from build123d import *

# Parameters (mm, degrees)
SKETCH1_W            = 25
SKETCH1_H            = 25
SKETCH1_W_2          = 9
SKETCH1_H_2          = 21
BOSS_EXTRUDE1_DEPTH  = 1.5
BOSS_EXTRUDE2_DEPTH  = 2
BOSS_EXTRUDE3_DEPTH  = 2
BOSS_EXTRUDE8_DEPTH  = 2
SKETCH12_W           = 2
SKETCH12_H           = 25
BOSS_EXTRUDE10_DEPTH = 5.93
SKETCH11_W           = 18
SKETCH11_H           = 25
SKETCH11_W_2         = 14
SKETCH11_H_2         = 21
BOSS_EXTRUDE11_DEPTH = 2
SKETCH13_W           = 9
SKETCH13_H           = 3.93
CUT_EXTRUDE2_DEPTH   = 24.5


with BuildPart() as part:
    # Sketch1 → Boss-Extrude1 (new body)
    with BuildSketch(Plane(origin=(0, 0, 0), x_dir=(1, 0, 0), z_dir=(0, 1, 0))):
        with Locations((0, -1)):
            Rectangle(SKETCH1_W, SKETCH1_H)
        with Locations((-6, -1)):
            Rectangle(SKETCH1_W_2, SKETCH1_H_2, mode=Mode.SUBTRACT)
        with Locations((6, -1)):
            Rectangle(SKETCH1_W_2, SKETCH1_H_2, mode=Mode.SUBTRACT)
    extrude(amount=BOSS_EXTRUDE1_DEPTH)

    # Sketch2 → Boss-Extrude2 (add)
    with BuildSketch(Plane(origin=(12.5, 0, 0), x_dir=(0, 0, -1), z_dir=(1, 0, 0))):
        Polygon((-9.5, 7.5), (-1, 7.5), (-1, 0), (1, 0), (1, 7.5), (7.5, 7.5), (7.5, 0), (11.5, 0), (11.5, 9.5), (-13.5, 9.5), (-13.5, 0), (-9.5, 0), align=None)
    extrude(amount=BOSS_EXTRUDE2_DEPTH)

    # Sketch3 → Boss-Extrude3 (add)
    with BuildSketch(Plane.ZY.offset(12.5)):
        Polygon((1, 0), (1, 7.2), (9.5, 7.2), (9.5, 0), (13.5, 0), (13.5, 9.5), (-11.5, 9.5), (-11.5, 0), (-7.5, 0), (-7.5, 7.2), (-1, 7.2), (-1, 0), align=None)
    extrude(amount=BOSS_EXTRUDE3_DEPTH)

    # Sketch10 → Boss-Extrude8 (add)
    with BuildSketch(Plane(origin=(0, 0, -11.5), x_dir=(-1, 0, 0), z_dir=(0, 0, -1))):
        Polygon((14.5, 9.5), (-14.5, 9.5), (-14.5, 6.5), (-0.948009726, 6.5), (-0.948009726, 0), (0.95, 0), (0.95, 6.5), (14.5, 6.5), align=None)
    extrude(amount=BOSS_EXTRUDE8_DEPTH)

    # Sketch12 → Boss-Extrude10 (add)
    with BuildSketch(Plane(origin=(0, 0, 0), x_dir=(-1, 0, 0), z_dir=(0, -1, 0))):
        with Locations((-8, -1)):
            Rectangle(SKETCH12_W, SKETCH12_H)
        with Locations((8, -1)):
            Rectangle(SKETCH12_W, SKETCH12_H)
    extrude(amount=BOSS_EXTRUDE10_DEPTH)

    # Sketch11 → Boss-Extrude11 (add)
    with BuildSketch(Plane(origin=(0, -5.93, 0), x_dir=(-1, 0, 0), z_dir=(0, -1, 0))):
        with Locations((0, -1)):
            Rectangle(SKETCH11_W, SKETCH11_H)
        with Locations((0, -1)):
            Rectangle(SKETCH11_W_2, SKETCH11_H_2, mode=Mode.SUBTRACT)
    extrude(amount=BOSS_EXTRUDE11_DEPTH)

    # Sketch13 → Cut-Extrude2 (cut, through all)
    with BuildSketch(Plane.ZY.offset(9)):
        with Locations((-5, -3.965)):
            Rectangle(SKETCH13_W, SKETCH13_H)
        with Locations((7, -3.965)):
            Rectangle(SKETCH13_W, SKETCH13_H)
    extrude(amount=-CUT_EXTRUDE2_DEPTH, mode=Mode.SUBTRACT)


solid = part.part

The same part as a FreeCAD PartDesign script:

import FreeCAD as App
import Part
import Sketcher
Q = App.Units.Quantity

doc = App.newDocument("Part")
body = doc.addObject("PartDesign::Body", "Body")

sketch1 = doc.addObject("Sketcher::SketchObject", "Sketch")
body.addObject(sketch1)
sketch1.AttachmentSupport = (doc.XZ_Plane, [""])
sketch1.MapMode = "FlatFace"
sketch1.addGeometry(Part.LineSegment(App.Vector(-12, -12, 0), App.Vector(-12, 14, 0)), False)
sketch1.addGeometry(Part.LineSegment(App.Vector(-12, 14, 0), App.Vector(12, 14, 0)), False)
sketch1.addGeometry(Part.LineSegment(App.Vector(12, 14, 0), App.Vector(12, -12, 0)), False)
sketch1.addGeometry(Part.LineSegment(App.Vector(12, -12, 0), App.Vector(-12, -12, 0)), False)
sketch1.addGeometry(Part.LineSegment(App.Vector(-2, 12, 0), App.Vector(-10, 12, 0)), False)
sketch1.addGeometry(Part.LineSegment(App.Vector(-10, 12, 0), App.Vector(-10, -10, 0)), False)
sketch1.addGeometry(Part.LineSegment(App.Vector(-10, -10, 0), App.Vector(-2, -10, 0)), False)
sketch1.addGeometry(Part.LineSegment(App.Vector(-2, -10, 0), App.Vector(-2, 12, 0)), False)
sketch1.addGeometry(Part.LineSegment(App.Vector(10, 12, 0), App.Vector(2, 12, 0)), False)
sketch1.addGeometry(Part.LineSegment(App.Vector(2, 12, 0), App.Vector(2, -10, 0)), False)
sketch1.addGeometry(Part.LineSegment(App.Vector(2, -10, 0), App.Vector(10, -10, 0)), False)
sketch1.addGeometry(Part.LineSegment(App.Vector(10, -10, 0), App.Vector(10, 12, 0)), False)
sketch1.addConstraint(Sketcher.Constraint("Coincident", 0, 2, 1, 1))
sketch1.addConstraint(Sketcher.Constraint("Coincident", 1, 2, 2, 1))
sketch1.addConstraint(Sketcher.Constraint("Coincident", 2, 2, 3, 1))
sketch1.addConstraint(Sketcher.Constraint("Coincident", 3, 2, 0, 1))
sketch1.addConstraint(Sketcher.Constraint("Coincident", 4, 2, 5, 1))
sketch1.addConstraint(Sketcher.Constraint("Coincident", 5, 2, 6, 1))
sketch1.addConstraint(Sketcher.Constraint("Coincident", 6, 2, 7, 1))
sketch1.addConstraint(Sketcher.Constraint("Coincident", 7, 2, 4, 1))
sketch1.addConstraint(Sketcher.Constraint("Coincident", 8, 2, 9, 1))
sketch1.addConstraint(Sketcher.Constraint("Coincident", 9, 2, 10, 1))
sketch1.addConstraint(Sketcher.Constraint("Coincident", 10, 2, 11, 1))
sketch1.addConstraint(Sketcher.Constraint("Coincident", 11, 2, 8, 1))
sketch1.addConstraint(Sketcher.Constraint("Vertical", 0))
sketch1.addConstraint(Sketcher.Constraint("Horizontal", 1))
sketch1.addConstraint(Sketcher.Constraint("Vertical", 2))
sketch1.addConstraint(Sketcher.Constraint("Horizontal", 3))
sketch1.addConstraint(Sketcher.Constraint("Horizontal", 4))
sketch1.addConstraint(Sketcher.Constraint("Vertical", 5))
sketch1.addConstraint(Sketcher.Constraint("Horizontal", 6))
sketch1.addConstraint(Sketcher.Constraint("Vertical", 7))
sketch1.addConstraint(Sketcher.Constraint("Horizontal", 8))
sketch1.addConstraint(Sketcher.Constraint("Vertical", 9))
sketch1.addConstraint(Sketcher.Constraint("Horizontal", 10))
sketch1.addConstraint(Sketcher.Constraint("Vertical", 11))
sketch1.addConstraint(Sketcher.Constraint("Symmetric", 7, 2, 8, 2, -2))
sketch1.addConstraint(Sketcher.Constraint("Symmetric", 5, 2, 10, 2, -2))
sketch1.addConstraint(Sketcher.Constraint("Equal", 3, 0))
sketch1.addConstraint(Sketcher.Constraint("DistanceX", 1, 1, 1, 2, Q("25 mm")))
sketch1.addConstraint(Sketcher.Constraint("DistanceX", 4, 2, 4, 1, Q("9 mm")))
sketch1.addConstraint(Sketcher.Constraint("DistanceY", 5, 2, 5, 1, Q("21 mm")))
sketch1.addConstraint(Sketcher.Constraint("DistanceX", 0, 2, 4, 2, Q("2 mm")))
sketch1.addConstraint(Sketcher.Constraint("DistanceY", 4, 2, 0, 2, Q("2 mm")))
sketch1.addConstraint(Sketcher.Constraint("DistanceX", 7, 2, 8, 2, Q("3 mm")))
sketch1.addConstraint(Sketcher.Constraint("DistanceY", -1, 1, 0, 2, Q("13.5 mm")))
pad1 = doc.addObject("PartDesign::Pad", "Pad")
body.addObject(pad1)
pad1.Profile = sketch1
pad1.Length = 1.5
pad1.Reversed = True

sketch2 = doc.addObject("Sketcher::SketchObject", "Sketch001")
body.addObject(sketch2)
sketch2.AttachmentSupport = (doc.YZ_Plane, [""])
sketch2.MapMode = "FlatFace"
sketch2.AttachmentOffset = App.Placement(App.Vector(0, 0, 12.5), App.Rotation())
sketch2.addGeometry(Part.LineSegment(App.Vector(7.5, 9.5, 0), App.Vector(7.5, 1, 0)), False)
sketch2.addGeometry(Part.LineSegment(App.Vector(7.5, 1, 0), App.Vector(0, 1, 0)), False)
sketch2.addGeometry(Part.LineSegment(App.Vector(0, 1, 0), App.Vector(0, -1, 0)), False)
sketch2.addGeometry(Part.LineSegment(App.Vector(0, -1, 0), App.Vector(7.5, -1, 0)), False)
sketch2.addGeometry(Part.LineSegment(App.Vector(7.5, -1, 0), App.Vector(7.5, -7.5, 0)), False)
sketch2.addGeometry(Part.LineSegment(App.Vector(7.5, -7.5, 0), App.Vector(0, -7.5, 0)), False)
sketch2.addGeometry(Part.LineSegment(App.Vector(0, -7.5, 0), App.Vector(0, -11.5, 0)), False)
sketch2.addGeometry(Part.LineSegment(App.Vector(0, -11.5, 0), App.Vector(9.5, -11.5, 0)), False)
sketch2.addGeometry(Part.LineSegment(App.Vector(9.5, -11.5, 0), App.Vector(9.5, 13.5, 0)), False)
sketch2.addGeometry(Part.LineSegment(App.Vector(9.5, 13.5, 0), App.Vector(0, 13.5, 0)), False)
sketch2.addGeometry(Part.LineSegment(App.Vector(0, 13.5, 0), App.Vector(0, 9.5, 0)), False)
sketch2.addGeometry(Part.LineSegment(App.Vector(0, 9.5, 0), App.Vector(7.5, 9.5, 0)), False)
sketch2.addConstraint(Sketcher.Constraint("Coincident", 0, 2, 1, 1))
sketch2.addConstraint(Sketcher.Constraint("Coincident", 1, 2, 2, 1))
sketch2.addConstraint(Sketcher.Constraint("Coincident", 2, 2, 3, 1))
sketch2.addConstraint(Sketcher.Constraint("Coincident", 3, 2, 4, 1))
sketch2.addConstraint(Sketcher.Constraint("Coincident", 4, 2, 5, 1))
sketch2.addConstraint(Sketcher.Constraint("Coincident", 5, 2, 6, 1))
sketch2.addConstraint(Sketcher.Constraint("Coincident", 6, 2, 7, 1))
sketch2.addConstraint(Sketcher.Constraint("Coincident", 7, 2, 8, 1))
sketch2.addConstraint(Sketcher.Constraint("Coincident", 8, 2, 9, 1))
sketch2.addConstraint(Sketcher.Constraint("Coincident", 9, 2, 10, 1))
sketch2.addConstraint(Sketcher.Constraint("Coincident", 10, 2, 11, 1))
sketch2.addConstraint(Sketcher.Constraint("Coincident", 11, 2, 0, 1))
sketch2.addConstraint(Sketcher.Constraint("Vertical", 0))
sketch2.addConstraint(Sketcher.Constraint("Horizontal", 1))
sketch2.addConstraint(Sketcher.Constraint("Vertical", 2))
sketch2.addConstraint(Sketcher.Constraint("Horizontal", 3))
sketch2.addConstraint(Sketcher.Constraint("Vertical", 4))
sketch2.addConstraint(Sketcher.Constraint("Horizontal", 5))
sketch2.addConstraint(Sketcher.Constraint("Vertical", 6))
sketch2.addConstraint(Sketcher.Constraint("Horizontal", 7))
sketch2.addConstraint(Sketcher.Constraint("Vertical", 8))
sketch2.addConstraint(Sketcher.Constraint("Horizontal", 9))
sketch2.addConstraint(Sketcher.Constraint("Vertical", 10))
sketch2.addConstraint(Sketcher.Constraint("Horizontal", 11))
sketch2.addConstraint(Sketcher.Constraint("Symmetric", 1, 2, 2, 2, -1, 1))
sketch2.addConstraint(Sketcher.Constraint("PointOnObject", 5, 2, -2))
sketch2.addConstraint(Sketcher.Constraint("PointOnObject", 9, 2, -2))
sketch2.addConstraint(Sketcher.Constraint("Vertical", 0, 2, 3, 2))
sketch2.addConstraint(Sketcher.Constraint("Equal", 6, 10))
sketch2.addConstraint(Sketcher.Constraint("DistanceY", 2, 2, 2, 1, Q("2 mm")))
sketch2.addConstraint(Sketcher.Constraint("DistanceY", 6, 2, 6, 1, Q("4 mm")))
sketch2.addConstraint(Sketcher.Constraint("DistanceY", 8, 1, 8, 2, Q("25 mm")))
sketch2.addConstraint(Sketcher.Constraint("DistanceX", 1, 2, 1, 1, Q("7.5 mm")))
sketch2.addConstraint(Sketcher.Constraint("DistanceX", 7, 1, 7, 2, Q("9.5 mm")))
sketch2.addConstraint(Sketcher.Constraint("DistanceY", 0, 2, 0, 1, Q("8.5 mm")))
pad2 = doc.addObject("PartDesign::Pad", "Pad001")
body.addObject(pad2)
pad2.Profile = sketch2
pad2.Length = 2

sketch3 = doc.addObject("Sketcher::SketchObject", "Sketch002")
body.addObject(sketch3)
sketch3.AttachmentSupport = (doc.YZ_Plane, [""])
sketch3.MapMode = "FlatFace"
sketch3.AttachmentOffset = App.Placement(App.Vector(0, 0, -12.5), App.Rotation())
sketch3.addGeometry(Part.LineSegment(App.Vector(0, 1, 0), App.Vector(7.2, 1, 0)), False)
sketch3.addGeometry(Part.LineSegment(App.Vector(7.2, 1, 0), App.Vector(7.2, 9.5, 0)), False)
sketch3.addGeometry(Part.LineSegment(App.Vector(7.2, 9.5, 0), App.Vector(0, 9.5, 0)), False)
sketch3.addGeometry(Part.LineSegment(App.Vector(0, 9.5, 0), App.Vector(0, 13.5, 0)), False)
sketch3.addGeometry(Part.LineSegment(App.Vector(0, 13.5, 0), App.Vector(9.5, 13.5, 0)), False)
sketch3.addGeometry(Part.LineSegment(App.Vector(9.5, 13.5, 0), App.Vector(9.5, -11.5, 0)), False)
sketch3.addGeometry(Part.LineSegment(App.Vector(9.5, -11.5, 0), App.Vector(0, -11.5, 0)), False)
sketch3.addGeometry(Part.LineSegment(App.Vector(0, -11.5, 0), App.Vector(0, -7.5, 0)), False)
sketch3.addGeometry(Part.LineSegment(App.Vector(0, -7.5, 0), App.Vector(7.2, -7.5, 0)), False)
sketch3.addGeometry(Part.LineSegment(App.Vector(7.2, -7.5, 0), App.Vector(7.2, -1, 0)), False)
sketch3.addGeometry(Part.LineSegment(App.Vector(7.2, -1, 0), App.Vector(0, -1, 0)), False)
sketch3.addGeometry(Part.LineSegment(App.Vector(0, -1, 0), App.Vector(0, 1, 0)), False)
sketch3.addConstraint(Sketcher.Constraint("Coincident", 0, 2, 1, 1))
sketch3.addConstraint(Sketcher.Constraint("Coincident", 1, 2, 2, 1))
sketch3.addConstraint(Sketcher.Constraint("Coincident", 2, 2, 3, 1))
sketch3.addConstraint(Sketcher.Constraint("Coincident", 3, 2, 4, 1))
sketch3.addConstraint(Sketcher.Constraint("Coincident", 4, 2, 5, 1))
sketch3.addConstraint(Sketcher.Constraint("Coincident", 5, 2, 6, 1))
sketch3.addConstraint(Sketcher.Constraint("Coincident", 6, 2, 7, 1))
sketch3.addConstraint(Sketcher.Constraint("Coincident", 7, 2, 8, 1))
sketch3.addConstraint(Sketcher.Constraint("Coincident", 8, 2, 9, 1))
sketch3.addConstraint(Sketcher.Constraint("Coincident", 9, 2, 10, 1))
sketch3.addConstraint(Sketcher.Constraint("Coincident", 10, 2, 11, 1))
sketch3.addConstraint(Sketcher.Constraint("Coincident", 11, 2, 0, 1))
sketch3.addConstraint(Sketcher.Constraint("Horizontal", 0))
sketch3.addConstraint(Sketcher.Constraint("Vertical", 1))
sketch3.addConstraint(Sketcher.Constraint("Horizontal", 2))
sketch3.addConstraint(Sketcher.Constraint("Vertical", 3))
sketch3.addConstraint(Sketcher.Constraint("Horizontal", 4))
sketch3.addConstraint(Sketcher.Constraint("Vertical", 5))
sketch3.addConstraint(Sketcher.Constraint("Horizontal", 6))
sketch3.addConstraint(Sketcher.Constraint("Vertical", 7))
sketch3.addConstraint(Sketcher.Constraint("Horizontal", 8))
sketch3.addConstraint(Sketcher.Constraint("Vertical", 9))
sketch3.addConstraint(Sketcher.Constraint("Horizontal", 10))
sketch3.addConstraint(Sketcher.Constraint("Vertical", 11))
sketch3.addConstraint(Sketcher.Constraint("Symmetric", 10, 2, 11, 2, -1, 1))
sketch3.addConstraint(Sketcher.Constraint("PointOnObject", 2, 2, -2))
sketch3.addConstraint(Sketcher.Constraint("PointOnObject", 6, 2, -2))
sketch3.addConstraint(Sketcher.Constraint("Vertical", 1, 2, 8, 2))
sketch3.addConstraint(Sketcher.Constraint("Equal", 3, 7))
sketch3.addConstraint(Sketcher.Constraint("DistanceY", 3, 1, 3, 2, Q("4 mm")))
sketch3.addConstraint(Sketcher.Constraint("DistanceY", 5, 2, 5, 1, Q("25 mm")))
sketch3.addConstraint(Sketcher.Constraint("DistanceY", 11, 1, 11, 2, Q("2 mm")))
sketch3.addConstraint(Sketcher.Constraint("DistanceX", 0, 1, 0, 2, Q("7.2 mm")))
sketch3.addConstraint(Sketcher.Constraint("DistanceX", 4, 1, 4, 2, Q("9.5 mm")))
sketch3.addConstraint(Sketcher.Constraint("DistanceY", 1, 1, 1, 2, Q("8.5 mm")))
pad3 = doc.addObject("PartDesign::Pad", "Pad002")
body.addObject(pad3)
pad3.Profile = sketch3
pad3.Length = 2
pad3.Reversed = True

sketch4 = doc.addObject("Sketcher::SketchObject", "Sketch003")
body.addObject(sketch4)
sketch4.AttachmentSupport = (doc.XY_Plane, [""])
sketch4.MapMode = "FlatFace"
sketch4.AttachmentOffset = App.Placement(App.Vector(0, 0, -11.5), App.Rotation())
sketch4.addGeometry(Part.LineSegment(App.Vector(-14.5, 9.5, 0), App.Vector(14.5, 9.5, 0)), False)
sketch4.addGeometry(Part.LineSegment(App.Vector(14.5, 9.5, 0), App.Vector(14.5, 6.5, 0)), False)
sketch4.addGeometry(Part.LineSegment(App.Vector(14.5, 6.5, 0), App.Vector(0.9, 6.5, 0)), False)
sketch4.addGeometry(Part.LineSegment(App.Vector(0.9, 6.5, 0), App.Vector(0.9, 0, 0)), False)
sketch4.addGeometry(Part.LineSegment(App.Vector(0.9, 0, 0), App.Vector(-0.9, 0, 0)), False)
sketch4.addGeometry(Part.LineSegment(App.Vector(-0.9, 0, 0), App.Vector(-0.9, 6.5, 0)), False)
sketch4.addGeometry(Part.LineSegment(App.Vector(-0.9, 6.5, 0), App.Vector(-14.5, 6.5, 0)), False)
sketch4.addGeometry(Part.LineSegment(App.Vector(-14.5, 6.5, 0), App.Vector(-14.5, 9.5, 0)), False)
sketch4.addConstraint(Sketcher.Constraint("Coincident", 0, 2, 1, 1))
sketch4.addConstraint(Sketcher.Constraint("Coincident", 1, 2, 2, 1))
sketch4.addConstraint(Sketcher.Constraint("Coincident", 2, 2, 3, 1))
sketch4.addConstraint(Sketcher.Constraint("Coincident", 3, 2, 4, 1))
sketch4.addConstraint(Sketcher.Constraint("Coincident", 4, 2, 5, 1))
sketch4.addConstraint(Sketcher.Constraint("Coincident", 5, 2, 6, 1))
sketch4.addConstraint(Sketcher.Constraint("Coincident", 6, 2, 7, 1))
sketch4.addConstraint(Sketcher.Constraint("Coincident", 7, 2, 0, 1))
sketch4.addConstraint(Sketcher.Constraint("Horizontal", 0))
sketch4.addConstraint(Sketcher.Constraint("Vertical", 1))
sketch4.addConstraint(Sketcher.Constraint("Horizontal", 2))
sketch4.addConstraint(Sketcher.Constraint("Vertical", 3))
sketch4.addConstraint(Sketcher.Constraint("Horizontal", 4))
sketch4.addConstraint(Sketcher.Constraint("Vertical", 5))
sketch4.addConstraint(Sketcher.Constraint("Horizontal", 6))
sketch4.addConstraint(Sketcher.Constraint("Vertical", 7))
sketch4.addConstraint(Sketcher.Constraint("Symmetric", 1, 2, 6, 2, -2))
sketch4.addConstraint(Sketcher.Constraint("PointOnObject", 3, 2, -1))
sketch4.addConstraint(Sketcher.Constraint("DistanceX", 0, 1, 0, 2, Q("29 mm")))
sketch4.addConstraint(Sketcher.Constraint("DistanceY", 1, 2, 1, 1, Q("3 mm")))
sketch4.addConstraint(Sketcher.Constraint("DistanceY", 3, 2, 3, 1, Q("6.5 mm")))
sketch4.addConstraint(Sketcher.Constraint("DistanceX", 6, 2, 6, 1, Q("13.55 mm")))
sketch4.addConstraint(Sketcher.Constraint("DistanceX", 2, 2, 2, 1, Q("13.55199 mm")))
pad4 = doc.addObject("PartDesign::Pad", "Pad003")
body.addObject(pad4)
pad4.Profile = sketch4
pad4.Length = 2
pad4.Reversed = True

sketch5 = doc.addObject("Sketcher::SketchObject", "Sketch004")
body.addObject(sketch5)
sketch5.AttachmentSupport = (doc.XZ_Plane, [""])
sketch5.MapMode = "FlatFace"
sketch5.addGeometry(Part.LineSegment(App.Vector(9, -11.5, 0), App.Vector(9, 13.5, 0)), False)
sketch5.addGeometry(Part.LineSegment(App.Vector(9, 13.5, 0), App.Vector(7, 13.5, 0)), False)
sketch5.addGeometry(Part.LineSegment(App.Vector(7, 13.5, 0), App.Vector(7, -11.5, 0)), False)
sketch5.addGeometry(Part.LineSegment(App.Vector(7, -11.5, 0), App.Vector(9, -11.5, 0)), False)
sketch5.addGeometry(Part.LineSegment(App.Vector(-7, -11.5, 0), App.Vector(-7, 13.5, 0)), False)
sketch5.addGeometry(Part.LineSegment(App.Vector(-7, 13.5, 0), App.Vector(-9, 13.5, 0)), False)
sketch5.addGeometry(Part.LineSegment(App.Vector(-9, 13.5, 0), App.Vector(-9, -11.5, 0)), False)
sketch5.addGeometry(Part.LineSegment(App.Vector(-9, -11.5, 0), App.Vector(-7, -11.5, 0)), False)
sketch5.addConstraint(Sketcher.Constraint("Coincident", 0, 2, 1, 1))
sketch5.addConstraint(Sketcher.Constraint("Coincident", 1, 2, 2, 1))
sketch5.addConstraint(Sketcher.Constraint("Coincident", 2, 2, 3, 1))
sketch5.addConstraint(Sketcher.Constraint("Coincident", 3, 2, 0, 1))
sketch5.addConstraint(Sketcher.Constraint("Coincident", 4, 2, 5, 1))
sketch5.addConstraint(Sketcher.Constraint("Coincident", 5, 2, 6, 1))
sketch5.addConstraint(Sketcher.Constraint("Coincident", 6, 2, 7, 1))
sketch5.addConstraint(Sketcher.Constraint("Coincident", 7, 2, 4, 1))
sketch5.addConstraint(Sketcher.Constraint("Vertical", 0))
sketch5.addConstraint(Sketcher.Constraint("Horizontal", 1))
sketch5.addConstraint(Sketcher.Constraint("Vertical", 2))
sketch5.addConstraint(Sketcher.Constraint("Horizontal", 3))
sketch5.addConstraint(Sketcher.Constraint("Vertical", 4))
sketch5.addConstraint(Sketcher.Constraint("Horizontal", 5))
sketch5.addConstraint(Sketcher.Constraint("Vertical", 6))
sketch5.addConstraint(Sketcher.Constraint("Horizontal", 7))
sketch5.addConstraint(Sketcher.Constraint("Symmetric", 1, 2, 4, 2, -2))
sketch5.addConstraint(Sketcher.Constraint("Symmetric", 3, 2, 6, 2, -2))
sketch5.addConstraint(Sketcher.Constraint("DistanceX", 1, 2, 1, 1, Q("2 mm")))
sketch5.addConstraint(Sketcher.Constraint("DistanceY", 0, 1, 0, 2, Q("25 mm")))
sketch5.addConstraint(Sketcher.Constraint("DistanceX", -1, 1, 0, 2, Q("9 mm")))
sketch5.addConstraint(Sketcher.Constraint("DistanceY", -1, 1, 0, 2, Q("13.5 mm")))
pad5 = doc.addObject("PartDesign::Pad", "Pad004")
body.addObject(pad5)
pad5.Profile = sketch5
pad5.Length = 5.93

sketch6 = doc.addObject("Sketcher::SketchObject", "Sketch005")
body.addObject(sketch6)
sketch6.AttachmentSupport = (doc.XZ_Plane, [""])
sketch6.MapMode = "FlatFace"
sketch6.AttachmentOffset = App.Placement(App.Vector(0, 0, 5.93), App.Rotation())
sketch6.addGeometry(Part.LineSegment(App.Vector(9, -12, 0), App.Vector(9, 14, 0)), False)
sketch6.addGeometry(Part.LineSegment(App.Vector(9, 14, 0), App.Vector(-9, 14, 0)), False)
sketch6.addGeometry(Part.LineSegment(App.Vector(-9, 14, 0), App.Vector(-9, -12, 0)), False)
sketch6.addGeometry(Part.LineSegment(App.Vector(-9, -12, 0), App.Vector(9, -12, 0)), False)
sketch6.addGeometry(Part.LineSegment(App.Vector(-7, 12, 0), App.Vector(7, 12, 0)), False)
sketch6.addGeometry(Part.LineSegment(App.Vector(7, 12, 0), App.Vector(7, -10, 0)), False)
sketch6.addGeometry(Part.LineSegment(App.Vector(7, -10, 0), App.Vector(-7, -10, 0)), False)
sketch6.addGeometry(Part.LineSegment(App.Vector(-7, -10, 0), App.Vector(-7, 12, 0)), False)
sketch6.addConstraint(Sketcher.Constraint("Coincident", 0, 2, 1, 1))
sketch6.addConstraint(Sketcher.Constraint("Coincident", 1, 2, 2, 1))
sketch6.addConstraint(Sketcher.Constraint("Coincident", 2, 2, 3, 1))
sketch6.addConstraint(Sketcher.Constraint("Coincident", 3, 2, 0, 1))
sketch6.addConstraint(Sketcher.Constraint("Coincident", 4, 2, 5, 1))
sketch6.addConstraint(Sketcher.Constraint("Coincident", 5, 2, 6, 1))
sketch6.addConstraint(Sketcher.Constraint("Coincident", 6, 2, 7, 1))
sketch6.addConstraint(Sketcher.Constraint("Coincident", 7, 2, 4, 1))
sketch6.addConstraint(Sketcher.Constraint("Vertical", 0))
sketch6.addConstraint(Sketcher.Constraint("Horizontal", 1))
sketch6.addConstraint(Sketcher.Constraint("Vertical", 2))
sketch6.addConstraint(Sketcher.Constraint("Horizontal", 3))
sketch6.addConstraint(Sketcher.Constraint("Horizontal", 4))
sketch6.addConstraint(Sketcher.Constraint("Vertical", 5))
sketch6.addConstraint(Sketcher.Constraint("Horizontal", 6))
sketch6.addConstraint(Sketcher.Constraint("Vertical", 7))
sketch6.addConstraint(Sketcher.Constraint("DistanceX", 1, 2, 1, 1, Q("18 mm")))
sketch6.addConstraint(Sketcher.Constraint("DistanceX", 4, 1, 4, 2, Q("14 mm")))
sketch6.addConstraint(Sketcher.Constraint("DistanceY", 0, 1, 0, 2, Q("25 mm")))
sketch6.addConstraint(Sketcher.Constraint("DistanceY", 5, 2, 5, 1, Q("21 mm")))
sketch6.addConstraint(Sketcher.Constraint("DistanceX", -1, 1, 0, 2, Q("9 mm")))
sketch6.addConstraint(Sketcher.Constraint("DistanceX", -1, 1, 4, 2, Q("7 mm")))
sketch6.addConstraint(Sketcher.Constraint("DistanceY", 4, 2, 0, 2, Q("2 mm")))
sketch6.addConstraint(Sketcher.Constraint("DistanceY", -1, 1, 0, 2, Q("13.5 mm")))
pad6 = doc.addObject("PartDesign::Pad", "Pad005")
body.addObject(pad6)
pad6.Profile = sketch6
pad6.Length = 2

sketch7 = doc.addObject("Sketcher::SketchObject", "Sketch006")
body.addObject(sketch7)
sketch7.AttachmentSupport = (doc.YZ_Plane, [""])
sketch7.MapMode = "FlatFace"
sketch7.AttachmentOffset = App.Placement(App.Vector(0, 0, -9), App.Rotation())
sketch7.addGeometry(Part.LineSegment(App.Vector(-2, -9.5, 0), App.Vector(-5.9, -9.5, 0)), False)
sketch7.addGeometry(Part.LineSegment(App.Vector(-5.9, -9.5, 0), App.Vector(-5.9, -0.5, 0)), False)
sketch7.addGeometry(Part.LineSegment(App.Vector(-5.9, -0.5, 0), App.Vector(-2, -0.5, 0)), False)
sketch7.addGeometry(Part.LineSegment(App.Vector(-2, -0.5, 0), App.Vector(-2, -9.5, 0)), False)
sketch7.addGeometry(Part.LineSegment(App.Vector(-2, 2.5, 0), App.Vector(-5.9, 2.5, 0)), False)
sketch7.addGeometry(Part.LineSegment(App.Vector(-5.9, 2.5, 0), App.Vector(-5.9, 11.5, 0)), False)
sketch7.addGeometry(Part.LineSegment(App.Vector(-5.9, 11.5, 0), App.Vector(-2, 11.5, 0)), False)
sketch7.addGeometry(Part.LineSegment(App.Vector(-2, 11.5, 0), App.Vector(-2, 2.5, 0)), False)
sketch7.addConstraint(Sketcher.Constraint("Coincident", 0, 2, 1, 1))
sketch7.addConstraint(Sketcher.Constraint("Coincident", 1, 2, 2, 1))
sketch7.addConstraint(Sketcher.Constraint("Coincident", 2, 2, 3, 1))
sketch7.addConstraint(Sketcher.Constraint("Coincident", 3, 2, 0, 1))
sketch7.addConstraint(Sketcher.Constraint("Coincident", 4, 2, 5, 1))
sketch7.addConstraint(Sketcher.Constraint("Coincident", 5, 2, 6, 1))
sketch7.addConstraint(Sketcher.Constraint("Coincident", 6, 2, 7, 1))
sketch7.addConstraint(Sketcher.Constraint("Coincident", 7, 2, 4, 1))
sketch7.addConstraint(Sketcher.Constraint("Horizontal", 0))
sketch7.addConstraint(Sketcher.Constraint("Vertical", 1))
sketch7.addConstraint(Sketcher.Constraint("Horizontal", 2))
sketch7.addConstraint(Sketcher.Constraint("Vertical", 3))
sketch7.addConstraint(Sketcher.Constraint("Horizontal", 4))
sketch7.addConstraint(Sketcher.Constraint("Vertical", 5))
sketch7.addConstraint(Sketcher.Constraint("Horizontal", 6))
sketch7.addConstraint(Sketcher.Constraint("Vertical", 7))
sketch7.addConstraint(Sketcher.Constraint("Vertical", 1, 2, 4, 2))
sketch7.addConstraint(Sketcher.Constraint("Vertical", 3, 2, 6, 2))
sketch7.addConstraint(Sketcher.Constraint("Equal", 3, 5))
sketch7.addConstraint(Sketcher.Constraint("DistanceY", 1, 1, 1, 2, Q("9 mm")))
sketch7.addConstraint(Sketcher.Constraint("DistanceX", 2, 2, -1, 1, Q("2 mm")))
sketch7.addConstraint(Sketcher.Constraint("DistanceY", 1, 2, 4, 2, Q("3 mm")))
sketch7.addConstraint(Sketcher.Constraint("DistanceX", 0, 2, 0, 1, Q("3.93 mm")))
sketch7.addConstraint(Sketcher.Constraint("DistanceY", 0, 2, -1, 1, Q("9.5 mm")))
pocket1 = doc.addObject("PartDesign::Pocket", "Pocket")
body.addObject(pocket1)
pocket1.Profile = sketch7
pocket1.Type = "ThroughAll"
pocket1.Reversed = True

doc.recompute()
